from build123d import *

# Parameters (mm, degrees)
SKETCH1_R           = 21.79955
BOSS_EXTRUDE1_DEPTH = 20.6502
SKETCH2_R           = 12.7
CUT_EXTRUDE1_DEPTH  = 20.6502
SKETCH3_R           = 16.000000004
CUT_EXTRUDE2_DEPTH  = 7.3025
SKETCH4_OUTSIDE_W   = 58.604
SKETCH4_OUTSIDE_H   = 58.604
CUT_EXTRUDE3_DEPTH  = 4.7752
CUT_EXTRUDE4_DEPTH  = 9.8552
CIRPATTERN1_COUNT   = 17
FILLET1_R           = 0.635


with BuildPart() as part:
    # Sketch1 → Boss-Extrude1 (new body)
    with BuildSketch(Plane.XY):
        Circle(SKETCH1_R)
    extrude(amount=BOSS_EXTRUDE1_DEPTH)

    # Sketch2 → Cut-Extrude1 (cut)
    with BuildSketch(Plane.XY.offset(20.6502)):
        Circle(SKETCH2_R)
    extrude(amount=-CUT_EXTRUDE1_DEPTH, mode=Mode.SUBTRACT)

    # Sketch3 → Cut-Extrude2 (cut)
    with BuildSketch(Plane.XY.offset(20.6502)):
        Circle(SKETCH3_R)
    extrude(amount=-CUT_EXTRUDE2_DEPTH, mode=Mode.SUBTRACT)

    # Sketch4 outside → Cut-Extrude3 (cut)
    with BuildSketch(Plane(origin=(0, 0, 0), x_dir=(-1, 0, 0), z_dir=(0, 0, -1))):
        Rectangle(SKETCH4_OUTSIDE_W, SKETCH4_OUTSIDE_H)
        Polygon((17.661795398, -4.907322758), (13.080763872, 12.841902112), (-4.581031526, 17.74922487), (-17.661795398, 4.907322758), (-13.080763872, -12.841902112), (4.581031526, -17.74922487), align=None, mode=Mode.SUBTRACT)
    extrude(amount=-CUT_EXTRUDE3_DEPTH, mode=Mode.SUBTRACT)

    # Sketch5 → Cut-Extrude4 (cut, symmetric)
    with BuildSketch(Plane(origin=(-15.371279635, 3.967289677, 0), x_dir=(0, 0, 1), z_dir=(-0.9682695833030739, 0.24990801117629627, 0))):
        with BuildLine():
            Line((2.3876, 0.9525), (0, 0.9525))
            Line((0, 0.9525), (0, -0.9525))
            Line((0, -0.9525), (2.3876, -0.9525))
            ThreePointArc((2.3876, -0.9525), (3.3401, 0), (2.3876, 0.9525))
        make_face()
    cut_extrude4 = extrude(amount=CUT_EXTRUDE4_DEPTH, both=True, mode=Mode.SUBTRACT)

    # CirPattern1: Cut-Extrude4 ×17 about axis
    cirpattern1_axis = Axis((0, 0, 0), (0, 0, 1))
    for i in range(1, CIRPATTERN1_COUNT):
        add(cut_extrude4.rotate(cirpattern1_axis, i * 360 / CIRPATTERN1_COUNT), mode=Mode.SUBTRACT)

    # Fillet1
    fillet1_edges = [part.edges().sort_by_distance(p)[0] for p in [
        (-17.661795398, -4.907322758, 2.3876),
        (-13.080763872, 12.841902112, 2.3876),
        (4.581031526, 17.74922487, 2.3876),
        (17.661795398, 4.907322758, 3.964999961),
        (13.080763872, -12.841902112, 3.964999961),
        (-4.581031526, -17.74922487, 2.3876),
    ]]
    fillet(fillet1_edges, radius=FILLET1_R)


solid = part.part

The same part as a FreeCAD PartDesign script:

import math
import FreeCAD as App
import Part
import Sketcher
from FreeCAD import Vector
Q = App.Units.Quantity


def edges_at(feature, points):
    """Names of the edges that pass closest to the given points."""
    edges = feature.Shape.Edges
    near = lambda p: min(range(len(edges)), key=lambda i: edges[i].distToShape(Part.Vertex(*p))[0])
    return sorted({f"Edge{near(p) + 1}" for p in points})


def add_polygon(sketch, points):
    """Adds a closed chain of lines whose ends are joined by coincident constraints."""
    first, n = sketch.GeometryCount, len(points)
    for a, b in zip(points, points[1:] + points[:1]):
        sketch.addGeometry(Part.LineSegment(App.Vector(*a, 0), App.Vector(*b, 0)), False)
    for i in range(n):
        sketch.addConstraint(Sketcher.Constraint("Coincident", first + i, 2, first + (i + 1) % n, 1))

doc = App.newDocument("Part")
body = doc.addObject("PartDesign::Body", "Body")

# Sketch on XY plane
sketch1 = body.newObject("Sketcher::SketchObject", "Sketch")
sketch1.AttachmentSupport = (doc.getObject("XY_Plane"), [""])
sketch1.MapMode = "FlatFace"
sketch1.addGeometry(Part.Circle(Vector(0, 0, 0), Vector(0, 0, 1), 21.79955), False)
sketch1.addConstraint(Sketcher.Constraint("Coincident", 0, 3, -1, 1))
sketch1.addConstraint(Sketcher.Constraint("Diameter", 0, Q("1.7165 in")))
pad1 = body.newObject("PartDesign::Pad", "Pad")
pad1.Profile = sketch1
pad1.Length = Q("0.813 in")

# Sketch on XY plane
sketch2 = body.newObject("Sketcher::SketchObject", "Sketch001")
sketch2.AttachmentSupport = (doc.getObject("XY_Plane"), [""])
sketch2.MapMode = "FlatFace"
sketch2.AttachmentOffset = App.Placement(Vector(0, 0, 0.813 * 25.4), App.Rotation())
sketch2.addGeometry(Part.Circle(Vector(0, 0, 0), Vector(0, 0, 1), 12.7), False)
sketch2.addConstraint(Sketcher.Constraint("Coincident", 0, 3, -1, 1))
sketch2.addConstraint(Sketcher.Constraint("Diameter", 0, Q("1 in")))
pocket1 = body.newObject("PartDesign::Pocket", "Pocket")
pocket1.Profile = sketch2
pocket1.Length = Q("0.813 in")

# Sketch on XY plane
sketch3 = body.newObject("Sketcher::SketchObject", "Sketch002")
sketch3.AttachmentSupport = (doc.getObject("XY_Plane"), [""])
sketch3.MapMode = "FlatFace"
sketch3.AttachmentOffset = App.Placement(Vector(0, 0, 0.813 * 25.4), App.Rotation())
sketch3.addGeometry(Part.Circle(Vector(0, 0, 0), Vector(0, 0, 1), 16), False)
sketch3.addConstraint(Sketcher.Constraint("Coincident", 0, 3, -1, 1))
sketch3.addConstraint(Sketcher.Constraint("Diameter", 0, 32.0))
pocket2 = body.newObject("PartDesign::Pocket", "Pocket001")
pocket2.Profile = sketch3
pocket2.Length = Q("0.2875 in")

# Sketch on XY plane
sketch4 = body.newObject("Sketcher::SketchObject", "Sketch003")
sketch4.AttachmentSupport = (doc.getObject("XY_Plane"), [""])
sketch4.MapMode = "FlatFace"
add_polygon(sketch4, [(29.302, 29.302), (29.302, -29.302), (-29.302, -29.302), (-29.302, 29.302)])  # lines 0-3
add_polygon(sketch4, [(-13.080764, 12.841902), (-17.661795, -4.907323), (-4.581032, -17.749225), (13.080764, -12.841902), (17.661795, 4.907323), (4.581032, 17.749225)])  # lines 4-9
sketch4.addConstraint(Sketcher.Constraint("Vertical", 0))
sketch4.addConstraint(Sketcher.Constraint("Horizontal", 1))
sketch4.addConstraint(Sketcher.Constraint("Vertical", 2))
sketch4.addConstraint(Sketcher.Constraint("Horizontal", 3))
sketch4.addConstraint(Sketcher.Constraint("Symmetric", 0, 2, 2, 2, -1, 1))
sketch4.addConstraint(Sketcher.Constraint("Symmetric", 4, 2, 7, 2, -1, 1))
sketch4.addConstraint(Sketcher.Constraint("Symmetric", 5, 2, 8, 2, -1, 1))
sketch4.addConstraint(Sketcher.Constraint("Symmetric", 6, 2, 9, 2, -1, 1))
sketch4.addConstraint(Sketcher.Constraint("Equal", 3, 0))
sketch4.addConstraint(Sketcher.Constraint("Equal", 4, 5))
sketch4.addConstraint(Sketcher.Constraint("Equal", 5, 6))
sketch4.addConstraint(Sketcher.Constraint("DistanceX", 1, 2, 1, 1, 58.604))
sketch4.addConstraint(Sketcher.Constraint("Distance", 4, 18.330871))
sketch4.addConstraint(Sketcher.Constraint("DistanceX", 5, 2, -1, 1, 4.581032))
sketch4.addConstraint(Sketcher.Constraint("DistanceX", 4, 2, 6, 2, 30.742559))
sketch4.addConstraint(Sketcher.Constraint("DistanceY", 6, 2, 4, 2, 7.934579))
pocket3 = body.newObject("PartDesign::Pocket", "Pocket002")
pocket3.Profile = sketch4
pocket3.Length = Q("0.188 in")
pocket3.Reversed = True

# Sketch on an angled plane
sketch5 = body.newObject("Sketcher::SketchObject", "Sketch004")
sketch5.Placement = App.Placement(Vector(-15.37128, 3.96729, 0), App.Rotation(Vector(0, 0, 1), Vector(0.249908011, 0.968269583, 0), Vector(-0.968269583, 0.249908011, 0), "ZXY"))
sketch5.addGeometry(Part.LineSegment(Vector(2.3876, 0.9525, 0), Vector(0, 0.9525, 0)), False)
sketch5.addGeometry(Part.LineSegment(Vector(0, 0.9525, 0), Vector(0, -0.9525, 0)), False)
sketch5.addGeometry(Part.LineSegment(Vector(0, -0.9525, 0), Vector(2.3876, -0.9525, 0)), False)
sketch5.addGeometry(Part.ArcOfCircle(Part.Circle(Vector(2.3876, 0, 0), Vector(0, 0, 1), 0.9525), math.radians(-90), math.radians(90)), False)
sketch5.addConstraint(Sketcher.Constraint("Coincident", 0, 2, 1, 1))
sketch5.addConstraint(Sketcher.Constraint("Coincident", 1, 2, 2, 1))
sketch5.addConstraint(Sketcher.Constraint("Tangent", 2, 2, 3, 1))
sketch5.addConstraint(Sketcher.Constraint("Tangent", 3, 2, 0, 1))
sketch5.addConstraint(Sketcher.Constraint("Horizontal", 0))
sketch5.addConstraint(Sketcher.Constraint("Vertical", 1))
sketch5.addConstraint(Sketcher.Constraint("Horizontal", 2))
sketch5.addConstraint(Sketcher.Constraint("Symmetric", 0, 2, 1, 2, -1, 1))
sketch5.addConstraint(Sketcher.Constraint("Radius", 3, Q("0.0375 in")))
sketch5.addConstraint(Sketcher.Constraint("DistanceX", 0, 2, 0, 1, Q("0.094 in")))
pocket4 = body.newObject("PartDesign::Pocket", "Pocket003")
pocket4.Profile = sketch5
pocket4.Length = Q("0.776 in")
pocket4.Midplane = True
doc.recompute()

polarpattern = body.newObject("PartDesign::PolarPattern", "PolarPattern")
polarpattern.Originals = [pocket4]
polarpattern.Axis = (doc.getObject("Z_Axis"), [""])
polarpattern.Angle = 360
polarpattern.Occurrences = 17
body.Tip = polarpattern
doc.recompute()

fillet = body.newObject("PartDesign::Fillet", "Fillet")
fillet.Base = (polarpattern, edges_at(polarpattern, [
    (-17.662, -4.907, 2.388),
    (-13.081, 12.842, 2.388),
    (4.581, 17.749, 2.388),
    (17.662, 4.907, 3.965),
    (13.081, -12.842, 3.965),
    (-4.581, -17.749, 2.388),
]))
fillet.Radius = Q("0.025 in")

doc.recompute()
